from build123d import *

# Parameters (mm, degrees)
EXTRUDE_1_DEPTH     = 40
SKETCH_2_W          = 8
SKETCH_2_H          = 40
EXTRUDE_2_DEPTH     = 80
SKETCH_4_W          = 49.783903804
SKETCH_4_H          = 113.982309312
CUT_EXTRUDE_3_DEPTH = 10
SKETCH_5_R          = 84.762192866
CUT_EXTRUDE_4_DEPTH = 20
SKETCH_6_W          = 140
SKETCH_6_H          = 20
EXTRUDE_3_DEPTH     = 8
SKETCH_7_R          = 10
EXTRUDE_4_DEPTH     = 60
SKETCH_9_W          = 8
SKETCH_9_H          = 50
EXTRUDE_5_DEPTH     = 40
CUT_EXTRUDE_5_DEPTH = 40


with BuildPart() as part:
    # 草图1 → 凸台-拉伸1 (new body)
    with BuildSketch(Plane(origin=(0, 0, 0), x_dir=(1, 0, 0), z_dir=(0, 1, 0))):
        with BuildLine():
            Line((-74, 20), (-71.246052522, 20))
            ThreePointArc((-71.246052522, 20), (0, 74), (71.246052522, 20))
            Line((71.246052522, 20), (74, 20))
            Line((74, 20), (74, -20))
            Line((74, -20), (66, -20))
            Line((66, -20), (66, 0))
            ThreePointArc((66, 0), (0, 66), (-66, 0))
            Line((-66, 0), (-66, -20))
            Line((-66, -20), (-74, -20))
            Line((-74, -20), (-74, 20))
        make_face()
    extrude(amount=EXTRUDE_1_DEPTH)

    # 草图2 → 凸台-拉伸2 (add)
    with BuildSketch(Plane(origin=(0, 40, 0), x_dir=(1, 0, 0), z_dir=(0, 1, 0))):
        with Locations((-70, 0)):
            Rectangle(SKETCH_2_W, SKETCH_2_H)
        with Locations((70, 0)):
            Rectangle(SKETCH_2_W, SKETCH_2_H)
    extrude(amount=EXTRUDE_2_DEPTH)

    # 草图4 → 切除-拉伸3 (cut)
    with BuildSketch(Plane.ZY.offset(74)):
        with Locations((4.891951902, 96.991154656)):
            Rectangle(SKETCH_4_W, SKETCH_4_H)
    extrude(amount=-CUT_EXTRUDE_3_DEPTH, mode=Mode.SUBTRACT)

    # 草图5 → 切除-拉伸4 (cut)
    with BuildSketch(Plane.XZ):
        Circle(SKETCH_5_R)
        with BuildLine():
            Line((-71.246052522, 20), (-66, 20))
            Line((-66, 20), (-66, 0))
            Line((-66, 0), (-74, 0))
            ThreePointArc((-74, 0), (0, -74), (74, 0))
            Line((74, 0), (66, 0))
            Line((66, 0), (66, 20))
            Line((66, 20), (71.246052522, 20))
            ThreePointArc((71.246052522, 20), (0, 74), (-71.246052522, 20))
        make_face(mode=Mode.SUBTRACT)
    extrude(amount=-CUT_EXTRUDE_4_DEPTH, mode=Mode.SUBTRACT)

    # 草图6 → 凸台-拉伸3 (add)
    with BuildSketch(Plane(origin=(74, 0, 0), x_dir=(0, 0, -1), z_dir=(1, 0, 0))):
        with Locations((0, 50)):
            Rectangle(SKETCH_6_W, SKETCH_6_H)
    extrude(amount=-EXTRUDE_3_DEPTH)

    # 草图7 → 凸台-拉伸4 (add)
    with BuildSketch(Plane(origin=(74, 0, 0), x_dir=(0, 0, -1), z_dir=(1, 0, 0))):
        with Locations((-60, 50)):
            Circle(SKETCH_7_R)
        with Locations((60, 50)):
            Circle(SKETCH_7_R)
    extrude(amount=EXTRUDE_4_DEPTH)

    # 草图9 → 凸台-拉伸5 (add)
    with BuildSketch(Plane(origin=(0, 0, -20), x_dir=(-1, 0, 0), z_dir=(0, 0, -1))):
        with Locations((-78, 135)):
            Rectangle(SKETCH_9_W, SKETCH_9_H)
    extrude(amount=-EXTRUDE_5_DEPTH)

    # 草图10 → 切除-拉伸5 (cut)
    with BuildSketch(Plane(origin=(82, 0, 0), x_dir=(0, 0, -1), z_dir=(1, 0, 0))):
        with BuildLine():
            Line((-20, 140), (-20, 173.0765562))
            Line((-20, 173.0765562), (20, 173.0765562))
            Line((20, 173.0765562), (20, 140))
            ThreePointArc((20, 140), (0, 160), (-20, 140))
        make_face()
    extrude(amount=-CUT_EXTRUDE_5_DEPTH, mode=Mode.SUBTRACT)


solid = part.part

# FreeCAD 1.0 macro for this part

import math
import FreeCAD as App
import Part
import Sketcher
from FreeCAD import Vector
Q = App.Units.Quantity


def add_polygon(sketch, points):
    """Adds a closed chain of lines whose ends are joined by coincident constraints."""
    first, n = sketch.GeometryCount, len(points)
    for a, b in zip(points, points[1:] + points[:1]):
        sketch.addGeometry(Part.LineSegment(App.Vector(*a, 0), App.Vector(*b, 0)), False)
    for i in range(n):
        sketch.addConstraint(Sketcher.Constraint("Coincident", first + i, 2, first + (i + 1) % n, 1))

doc = App.newDocument("Part")
body = doc.addObject("PartDesign::Body", "Body")

sketch1 = body.newObject("Sketcher::SketchObject", "Sketch")
sketch1.AttachmentSupport = (doc.getObject("XZ_Plane"), [""])
sketch1.MapMode = "FlatFace"
sketch1.addGeometry(Part.LineSegment(Vector(-71.2, -20, 0), Vector(-74, -20, 0)), False)
sketch1.addGeometry(Part.LineSegment(Vector(-74, -20, 0), Vector(-74, 20, 0)), False)
sketch1.addGeometry(Part.LineSegment(Vector(-74, 20, 0), Vector(-66, 20, 0)), False)
sketch1.addGeometry(Part.LineSegment(Vector(-66, 20, 0), Vector(-66, 0, 0)), False)
sketch1.addGeometry(Part.ArcOfCircle(Part.Circle(Vector(0, 0, 0), Vector(0, 0, 1), 66), math.radians(180), math.radians(360)), False)
sketch1.addGeometry(Part.LineSegment(Vector(66, 0, 0), Vector(66, 20, 0)), False)
sketch1.addGeometry(Part.LineSegment(Vector(66, 20, 0), Vector(74, 20, 0)), False)
sketch1.addGeometry(Part.LineSegment(Vector(74, 20, 0), Vector(74, -20, 0)), False)
sketch1.addGeometry(Part.LineSegment(Vector(74, -20, 0), Vector(71.2, -20, 0)), False)
sketch1.addGeometry(Part.ArcOfCircle(Part.Circle(Vector(0, 0, 0), Vector(0, 0, 1), 74), math.radians(-164), math.radians(-16)), False)
sketch1.addConstraint(Sketcher.Constraint("Coincident", 0, 2, 1, 1))
sketch1.addConstraint(Sketcher.Constraint("Coincident", 1, 2, 2, 1))
sketch1.addConstraint(Sketcher.Constraint("Coincident", 2, 2, 3, 1))
sketch1.addConstraint(Sketcher.Constraint("Tangent", 3, 2, 4, 1))
sketch1.addConstraint(Sketcher.Constraint("Tangent", 4, 2, 5, 1))
sketch1.addConstraint(Sketcher.Constraint("Coincident", 5, 2, 6, 1))
sketch1.addConstraint(Sketcher.Constraint("Coincident", 6, 2, 7, 1))
sketch1.addConstraint(Sketcher.Constraint("Coincident", 7, 2, 8, 1))
sketch1.addConstraint(Sketcher.Constraint("Coincident", 8, 2, 9, 2))
sketch1.addConstraint(Sketcher.Constraint("Coincident", 9, 1, 0, 1))
sketch1.addConstraint(Sketcher.Constraint("Horizontal", 0))
sketch1.addConstraint(Sketcher.Constraint("Vertical", 1))
sketch1.addConstraint(Sketcher.Constraint("Horizontal", 2))
sketch1.addConstraint(Sketcher.Constraint("Vertical", 3))
sketch1.addConstraint(Sketcher.Constraint("Vertical", 5))
sketch1.addConstraint(Sketcher.Constraint("Horizontal", 6))
sketch1.addConstraint(Sketcher.Constraint("Vertical", 7))
sketch1.addConstraint(Sketcher.Constraint("Horizontal", 8))
sketch1.addConstraint(Sketcher.Constraint("Coincident", 4, 3, -1, 1))
sketch1.addConstraint(Sketcher.Constraint("Coincident", 9, 3, -1, 1))
sketch1.addConstraint(Sketcher.Constraint("Symmetric", 0, 2, 6, 2, -1, 1))
sketch1.addConstraint(Sketcher.Constraint("Horizontal", 2, 2, 5, 2))
sketch1.addConstraint(Sketcher.Constraint("Horizontal", 0, 2, 7, 2))
sketch1.addConstraint(Sketcher.Constraint("Radius", 4, Q("66 mm")))
sketch1.addConstraint(Sketcher.Constraint("Radius", 9, Q("74 mm")))
sketch1.addConstraint(Sketcher.Constraint("DistanceX", 2, 1, 2, 2, Q("8 mm")))
sketch1.addConstraint(Sketcher.Constraint("DistanceY", 1, 1, 1, 2, Q("40 mm")))
pad1 = body.newObject("PartDesign::Pad", "Pad")
pad1.Profile = sketch1
pad1.Length = 40
pad1.Reversed = True

sketch2 = body.newObject("Sketcher::SketchObject", "Sketch001")
sketch2.AttachmentSupport = (doc.getObject("XZ_Plane"), [""])
sketch2.MapMode = "FlatFace"
sketch2.AttachmentOffset = App.Placement(Vector(0, 0, -40), App.Rotation())
add_polygon(sketch2, [(-74, -20), (-74, 20), (-66, 20), (-66, -20)])
add_polygon(sketch2, [(66, -20), (66, 20), (74, 20), (74, -20)])
sketch2.addConstraint(Sketcher.Constraint("Vertical", 0))
sketch2.addConstraint(Sketcher.Constraint("Horizontal", 1))
sketch2.addConstraint(Sketcher.Constraint("Vertical", 2))
sketch2.addConstraint(Sketcher.Constraint("Horizontal", 3))
sketch2.addConstraint(Sketcher.Constraint("Vertical", 4))
sketch2.addConstraint(Sketcher.Constraint("Horizontal", 5))
sketch2.addConstraint(Sketcher.Constraint("Vertical", 6))
sketch2.addConstraint(Sketcher.Constraint("Horizontal", 7))
sketch2.addConstraint(Sketcher.Constraint("Symmetric", 2, 2, 4, 2, -1, 1))
sketch2.addConstraint(Sketcher.Constraint("Symmetric", 0, 2, 6, 2, -1, 1))
sketch2.addConstraint(Sketcher.Constraint("Horizontal", 1, 2, 4, 2))
sketch2.addConstraint(Sketcher.Constraint("DistanceX", 1, 1, 1, 2, Q("8 mm")))
sketch2.addConstraint(Sketcher.Constraint("DistanceY", 0, 1, 0, 2, Q("40 mm")))
sketch2.addConstraint(Sketcher.Constraint("DistanceX", 0, 2, -1, 1, Q("74 mm")))
pad2 = body.newObject("PartDesign::Pad", "Pad001")
pad2.Profile = sketch2
pad2.Length = 80
pad2.Reversed = True

sketch3 = body.newObject("Sketcher::SketchObject", "Sketch002")
sketch3.AttachmentSupport = (doc.getObject("YZ_Plane"), [""])
sketch3.MapMode = "FlatFace"
sketch3.AttachmentOffset = App.Placement(Vector(0, 0, -74), App.Rotation())
add_polygon(sketch3, [(154, -20), (40, -20), (40, 30), (154, 30)])
sketch3.addConstraint(Sketcher.Constraint("Horizontal", 0))
sketch3.addConstraint(Sketcher.Constraint("Vertical", 1))
sketch3.addConstraint(Sketcher.Constraint("Horizontal", 2))
sketch3.addConstraint(Sketcher.Constraint("Vertical", 3))
sketch3.addConstraint(Sketcher.Constraint("DistanceX", -1, 1, 0, 2, Q("40 mm")))
sketch3.addConstraint(Sketcher.Constraint("DistanceY", 0, 2, -1, 1, Q("20 mm")))
sketch3.addConstraint(Sketcher.Constraint("DistanceX", 0, 2, 0, 1, Q("113.982309 mm")))
sketch3.addConstraint(Sketcher.Constraint("DistanceY", 1, 1, 1, 2, Q("49.783904 mm")))
pocket1 = body.newObject("PartDesign::Pocket", "Pocket")
pocket1.Profile = sketch3
pocket1.Length = 10
pocket1.Reversed = True

sketch4 = body.newObject("Sketcher::SketchObject", "Sketch003")
sketch4.AttachmentSupport = (doc.getObject("XZ_Plane"), [""])
sketch4.MapMode = "FlatFace"
sketch4.addGeometry(Part.Circle(Vector(0, 0, 0), Vector(0, 0, 1), 85), False)
sketch4.addGeometry(Part.LineSegment(Vector(-66, 20, 0), Vector(-71, 20, 0)), False)
sketch4.addGeometry(Part.ArcOfCircle(Part.Circle(Vector(0, 0, 0), Vector(0, 0, 1), 74), math.radians(16), math.radians(164)), False)
sketch4.addGeometry(Part.LineSegment(Vector(71, 20, 0), Vector(66, 20, 0)), False)
sketch4.addGeometry(Part.LineSegment(Vector(66, 20, 0), Vector(66, 0, 0)), False)
sketch4.addGeometry(Part.LineSegment(Vector(66, 0, 0), Vector(74, 0, 0)), False)
sketch4.addGeometry(Part.ArcOfCircle(Part.Circle(Vector(0, 0, 0), Vector(0, 0, 1), 74), math.radians(180), math.radians(360)), False)
sketch4.addGeometry(Part.LineSegment(Vector(-74, 0, 0), Vector(-66, 0, 0)), False)
sketch4.addGeometry(Part.LineSegment(Vector(-66, 0, 0), Vector(-66, 20, 0)), False)
sketch4.addConstraint(Sketcher.Constraint("Coincident", 1, 2, 2, 2))
sketch4.addConstraint(Sketcher.Constraint("Coincident", 2, 1, 3, 1))
sketch4.addConstraint(Sketcher.Constraint("Coincident", 3, 2, 4, 1))
sketch4.addConstraint(Sketcher.Constraint("Coincident", 4, 2, 5, 1))
sketch4.addConstraint(Sketcher.Constraint("Coincident", 5, 2, 6, 2))
sketch4.addConstraint(Sketcher.Constraint("Coincident", 6, 1, 7, 1))
sketch4.addConstraint(Sketcher.Constraint("Coincident", 7, 2, 8, 1))
sketch4.addConstraint(Sketcher.Constraint("Coincident", 8, 2, 1, 1))
sketch4.addConstraint(Sketcher.Constraint("Horizontal", 1))
sketch4.addConstraint(Sketcher.Constraint("Horizontal", 3))
sketch4.addConstraint(Sketcher.Constraint("Vertical", 4))
sketch4.addConstraint(Sketcher.Constraint("Horizontal", 5))
sketch4.addConstraint(Sketcher.Constraint("Horizontal", 7))
sketch4.addConstraint(Sketcher.Constraint("Vertical", 8))
sketch4.addConstraint(Sketcher.Constraint("Coincident", 0, 3, -1, 1))
sketch4.addConstraint(Sketcher.Constraint("Coincident", 2, 3, -1, 1))
sketch4.addConstraint(Sketcher.Constraint("Coincident", 6, 3, -1, 1))
sketch4.addConstraint(Sketcher.Constraint("Equal", 2, 6))
sketch4.addConstraint(Sketcher.Constraint("Symmetric", 4, 2, 7, 2, -1, 1))
sketch4.addConstraint(Sketcher.Constraint("PointOnObject", 4, 2, -1))
sketch4.addConstraint(Sketcher.Constraint("Horizontal", 1, 2, 2, 1))
sketch4.addConstraint(Sketcher.Constraint("Radius", 2, Q("74 mm")))
sketch4.addConstraint(Sketcher.Constraint("DistanceX", 5, 1, 5, 2, Q("8 mm")))
sketch4.addConstraint(Sketcher.Constraint("DistanceY", 4, 2, 4, 1, Q("20 mm")))
sketch4.addConstraint(Sketcher.Constraint("Diameter", 0, Q("169.524386 mm")))
pocket2 = body.newObject("PartDesign::Pocket", "Pocket001")
pocket2.Profile = sketch4
pocket2.Length = 20

sketch5 = body.newObject("Sketcher::SketchObject", "Sketch004")
sketch5.AttachmentSupport = (doc.getObject("YZ_Plane"), [""])
sketch5.MapMode = "FlatFace"
sketch5.AttachmentOffset = App.Placement(Vector(0, 0, 74), App.Rotation())
add_polygon(sketch5, [(60, 70), (40, 70), (40, -70), (60, -70)])
sketch5.addConstraint(Sketcher.Constraint("Horizontal", 0))
sketch5.addConstraint(Sketcher.Constraint("Vertical", 1))
sketch5.addConstraint(Sketcher.Constraint("Horizontal", 2))
sketch5.addConstraint(Sketcher.Constraint("Vertical", 3))
sketch5.addConstraint(Sketcher.Constraint("DistanceX", 0, 2, 0, 1, Q("20 mm")))
sketch5.addConstraint(Sketcher.Constraint("DistanceY", 1, 2, 1, 1, Q("140 mm")))
sketch5.addConstraint(Sketcher.Constraint("DistanceX", -1, 1, 0, 2, Q("40 mm")))
sketch5.addConstraint(Sketcher.Constraint("DistanceY", -1, 1, 0, 2, Q("70 mm")))
pad3 = body.newObject("PartDesign::Pad", "Pad002")
pad3.Profile = sketch5
pad3.Length = 8
pad3.Reversed = True

sketch6 = body.newObject("Sketcher::SketchObject", "Sketch005")
sketch6.AttachmentSupport = (doc.getObject("YZ_Plane"), [""])
sketch6.MapMode = "FlatFace"
sketch6.AttachmentOffset = App.Placement(Vector(0, 0, 74), App.Rotation())
sketch6.addGeometry(Part.Circle(Vector(50, 60, 0), Vector(0, 0, 1), 10), False)
sketch6.addGeometry(Part.Circle(Vector(50, -60, 0), Vector(0, 0, 1), 10), False)
sketch6.addConstraint(Sketcher.Constraint("Equal", 0, 1))
sketch6.addConstraint(Sketcher.Constraint("Symmetric", 0, 3, 1, 3, -1))
sketch6.addConstraint(Sketcher.Constraint("Diameter", 0, Q("20 mm")))
sketch6.addConstraint(Sketcher.Constraint("DistanceX", -1, 1, 0, 3, Q("50 mm")))
sketch6.addConstraint(Sketcher.Constraint("DistanceY", -1, 1, 0, 3, Q("60 mm")))
pad4 = body.newObject("PartDesign::Pad", "Pad003")
pad4.Profile = sketch6
pad4.Length = 60

sketch7 = body.newObject("Sketcher::SketchObject", "Sketch006")
sketch7.AttachmentSupport = (doc.getObject("XY_Plane"), [""])
sketch7.MapMode = "FlatFace"
sketch7.AttachmentOffset = App.Placement(Vector(0, 0, -20), App.Rotation())
add_polygon(sketch7, [(82, 160), (82, 110), (74, 110), (74, 160)])
sketch7.addConstraint(Sketcher.Constraint("Vertical", 0))
sketch7.addConstraint(Sketcher.Constraint("Horizontal", 1))
sketch7.addConstraint(Sketcher.Constraint("Vertical", 2))
sketch7.addConstraint(Sketcher.Constraint("Horizontal", 3))
sketch7.addConstraint(Sketcher.Constraint("DistanceX", 1, 2, 1, 1, Q("8 mm")))
sketch7.addConstraint(Sketcher.Constraint("DistanceY", 0, 2, 0, 1, Q("50 mm")))
sketch7.addConstraint(Sketcher.Constraint("DistanceX", -1, 1, 0, 2, Q("82 mm")))
sketch7.addConstraint(Sketcher.Constraint("DistanceY", -1, 1, 0, 2, Q("110 mm")))
pad5 = body.newObject("PartDesign::Pad", "Pad004")
pad5.Profile = sketch7
pad5.Length = 40

sketch8 = body.newObject("Sketcher::SketchObject", "Sketch007")
sketch8.AttachmentSupport = (doc.getObject("YZ_Plane"), [""])
sketch8.MapMode = "FlatFace"
sketch8.AttachmentOffset = App.Placement(Vector(0, 0, 82), App.Rotation())
sketch8.addGeometry(Part.LineSegment(Vector(173, 20, 0), Vector(140, 20, 0)), False)
sketch8.addGeometry(Part.ArcOfCircle(Part.Circle(Vector(140, 0, 0), Vector(0, 0, 1), 20), math.radians(-90), math.radians(90)), False)
sketch8.addGeometry(Part.LineSegment(Vector(140, -20, 0), Vector(173, -20, 0)), False)
sketch8.addGeometry(Part.LineSegment(Vector(173, -20, 0), Vector(173, 20, 0)), False)
sketch8.addConstraint(Sketcher.Constraint("Tangent", 0, 2, 1, 2))
sketch8.addConstraint(Sketcher.Constraint("Tangent", 1, 1, 2, 1))
sketch8.addConstraint(Sketcher.Constraint("Coincident", 2, 2, 3, 1))
sketch8.addConstraint(Sketcher.Constraint("Coincident", 3, 2, 0, 1))
sketch8.addConstraint(Sketcher.Constraint("Horizontal", 0))
sketch8.addConstraint(Sketcher.Constraint("Horizontal", 2))
sketch8.addConstraint(Sketcher.Constraint("Vertical", 3))
sketch8.addConstraint(Sketcher.Constraint("PointOnObject", 1, 3, -1))
sketch8.addConstraint(Sketcher.Constraint("Radius", 1, Q("20 mm")))
sketch8.addConstraint(Sketcher.Constraint("DistanceX", -1, 1, 1, 3, Q("140 mm")))
sketch8.addConstraint(Sketcher.Constraint("DistanceX", 0, 2, 0, 1, Q("33.076556 mm")))
pocket3 = body.newObject("PartDesign::Pocket", "Pocket002")
pocket3.Profile = sketch8
pocket3.Length = 40

doc.recompute()
